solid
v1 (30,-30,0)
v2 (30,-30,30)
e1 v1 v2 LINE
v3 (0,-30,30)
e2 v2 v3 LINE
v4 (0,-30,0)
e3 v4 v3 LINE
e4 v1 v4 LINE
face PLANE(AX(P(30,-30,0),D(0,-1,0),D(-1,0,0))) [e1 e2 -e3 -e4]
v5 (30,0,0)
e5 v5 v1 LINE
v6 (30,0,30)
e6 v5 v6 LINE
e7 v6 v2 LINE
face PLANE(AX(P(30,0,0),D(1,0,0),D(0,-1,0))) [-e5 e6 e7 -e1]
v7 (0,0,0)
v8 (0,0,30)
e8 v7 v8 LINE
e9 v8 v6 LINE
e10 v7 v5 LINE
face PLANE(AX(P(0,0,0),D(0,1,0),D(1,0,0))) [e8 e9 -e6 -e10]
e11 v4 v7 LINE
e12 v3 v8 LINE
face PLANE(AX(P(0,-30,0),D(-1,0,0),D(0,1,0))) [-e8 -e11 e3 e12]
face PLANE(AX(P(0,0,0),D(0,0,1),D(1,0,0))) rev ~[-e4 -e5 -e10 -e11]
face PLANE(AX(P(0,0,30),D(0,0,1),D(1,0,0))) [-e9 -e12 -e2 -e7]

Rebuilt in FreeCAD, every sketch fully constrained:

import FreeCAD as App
import Part
import Sketcher
from FreeCAD import Vector
Q = App.Units.Quantity


def add_polygon(sketch, points):
    """Adds a closed chain of lines whose ends are joined by coincident constraints."""
    first, n = sketch.GeometryCount, len(points)
    for a, b in zip(points, points[1:] + points[:1]):
        sketch.addGeometry(Part.LineSegment(App.Vector(*a, 0), App.Vector(*b, 0)), False)
    for i in range(n):
        sketch.addConstraint(Sketcher.Constraint("Coincident", first + i, 2, first + (i + 1) % n, 1))

doc = App.newDocument("Part")
body = doc.addObject("PartDesign::Body", "Body")

# Sketch on XY plane
sketch1 = body.newObject("Sketcher::SketchObject", "Sketch")
sketch1.AttachmentSupport = (doc.getObject("XY_Plane"), [""])
sketch1.MapMode = "FlatFace"
add_polygon(sketch1, [(30, 0), (0, 0), (0, -30), (30, -30)])  # lines 0-3
sketch1.addConstraint([
    Sketcher.Constraint("Horizontal", 0),
    Sketcher.Constraint("Vertical", 1),
    Sketcher.Constraint("Horizontal", 2),
    Sketcher.Constraint("Vertical", 3),
    Sketcher.Constraint("Coincident", 0, 2, -1, 1),
    Sketcher.Constraint("Equal", 2, 1),
    Sketcher.Constraint("DistanceX", 0, 2, 0, 1, Q("30 mm")),
])
pad1 = body.newObject("PartDesign::Pad", "Pad")
pad1.Profile = sketch1
pad1.Length = 30

doc.recompute()
